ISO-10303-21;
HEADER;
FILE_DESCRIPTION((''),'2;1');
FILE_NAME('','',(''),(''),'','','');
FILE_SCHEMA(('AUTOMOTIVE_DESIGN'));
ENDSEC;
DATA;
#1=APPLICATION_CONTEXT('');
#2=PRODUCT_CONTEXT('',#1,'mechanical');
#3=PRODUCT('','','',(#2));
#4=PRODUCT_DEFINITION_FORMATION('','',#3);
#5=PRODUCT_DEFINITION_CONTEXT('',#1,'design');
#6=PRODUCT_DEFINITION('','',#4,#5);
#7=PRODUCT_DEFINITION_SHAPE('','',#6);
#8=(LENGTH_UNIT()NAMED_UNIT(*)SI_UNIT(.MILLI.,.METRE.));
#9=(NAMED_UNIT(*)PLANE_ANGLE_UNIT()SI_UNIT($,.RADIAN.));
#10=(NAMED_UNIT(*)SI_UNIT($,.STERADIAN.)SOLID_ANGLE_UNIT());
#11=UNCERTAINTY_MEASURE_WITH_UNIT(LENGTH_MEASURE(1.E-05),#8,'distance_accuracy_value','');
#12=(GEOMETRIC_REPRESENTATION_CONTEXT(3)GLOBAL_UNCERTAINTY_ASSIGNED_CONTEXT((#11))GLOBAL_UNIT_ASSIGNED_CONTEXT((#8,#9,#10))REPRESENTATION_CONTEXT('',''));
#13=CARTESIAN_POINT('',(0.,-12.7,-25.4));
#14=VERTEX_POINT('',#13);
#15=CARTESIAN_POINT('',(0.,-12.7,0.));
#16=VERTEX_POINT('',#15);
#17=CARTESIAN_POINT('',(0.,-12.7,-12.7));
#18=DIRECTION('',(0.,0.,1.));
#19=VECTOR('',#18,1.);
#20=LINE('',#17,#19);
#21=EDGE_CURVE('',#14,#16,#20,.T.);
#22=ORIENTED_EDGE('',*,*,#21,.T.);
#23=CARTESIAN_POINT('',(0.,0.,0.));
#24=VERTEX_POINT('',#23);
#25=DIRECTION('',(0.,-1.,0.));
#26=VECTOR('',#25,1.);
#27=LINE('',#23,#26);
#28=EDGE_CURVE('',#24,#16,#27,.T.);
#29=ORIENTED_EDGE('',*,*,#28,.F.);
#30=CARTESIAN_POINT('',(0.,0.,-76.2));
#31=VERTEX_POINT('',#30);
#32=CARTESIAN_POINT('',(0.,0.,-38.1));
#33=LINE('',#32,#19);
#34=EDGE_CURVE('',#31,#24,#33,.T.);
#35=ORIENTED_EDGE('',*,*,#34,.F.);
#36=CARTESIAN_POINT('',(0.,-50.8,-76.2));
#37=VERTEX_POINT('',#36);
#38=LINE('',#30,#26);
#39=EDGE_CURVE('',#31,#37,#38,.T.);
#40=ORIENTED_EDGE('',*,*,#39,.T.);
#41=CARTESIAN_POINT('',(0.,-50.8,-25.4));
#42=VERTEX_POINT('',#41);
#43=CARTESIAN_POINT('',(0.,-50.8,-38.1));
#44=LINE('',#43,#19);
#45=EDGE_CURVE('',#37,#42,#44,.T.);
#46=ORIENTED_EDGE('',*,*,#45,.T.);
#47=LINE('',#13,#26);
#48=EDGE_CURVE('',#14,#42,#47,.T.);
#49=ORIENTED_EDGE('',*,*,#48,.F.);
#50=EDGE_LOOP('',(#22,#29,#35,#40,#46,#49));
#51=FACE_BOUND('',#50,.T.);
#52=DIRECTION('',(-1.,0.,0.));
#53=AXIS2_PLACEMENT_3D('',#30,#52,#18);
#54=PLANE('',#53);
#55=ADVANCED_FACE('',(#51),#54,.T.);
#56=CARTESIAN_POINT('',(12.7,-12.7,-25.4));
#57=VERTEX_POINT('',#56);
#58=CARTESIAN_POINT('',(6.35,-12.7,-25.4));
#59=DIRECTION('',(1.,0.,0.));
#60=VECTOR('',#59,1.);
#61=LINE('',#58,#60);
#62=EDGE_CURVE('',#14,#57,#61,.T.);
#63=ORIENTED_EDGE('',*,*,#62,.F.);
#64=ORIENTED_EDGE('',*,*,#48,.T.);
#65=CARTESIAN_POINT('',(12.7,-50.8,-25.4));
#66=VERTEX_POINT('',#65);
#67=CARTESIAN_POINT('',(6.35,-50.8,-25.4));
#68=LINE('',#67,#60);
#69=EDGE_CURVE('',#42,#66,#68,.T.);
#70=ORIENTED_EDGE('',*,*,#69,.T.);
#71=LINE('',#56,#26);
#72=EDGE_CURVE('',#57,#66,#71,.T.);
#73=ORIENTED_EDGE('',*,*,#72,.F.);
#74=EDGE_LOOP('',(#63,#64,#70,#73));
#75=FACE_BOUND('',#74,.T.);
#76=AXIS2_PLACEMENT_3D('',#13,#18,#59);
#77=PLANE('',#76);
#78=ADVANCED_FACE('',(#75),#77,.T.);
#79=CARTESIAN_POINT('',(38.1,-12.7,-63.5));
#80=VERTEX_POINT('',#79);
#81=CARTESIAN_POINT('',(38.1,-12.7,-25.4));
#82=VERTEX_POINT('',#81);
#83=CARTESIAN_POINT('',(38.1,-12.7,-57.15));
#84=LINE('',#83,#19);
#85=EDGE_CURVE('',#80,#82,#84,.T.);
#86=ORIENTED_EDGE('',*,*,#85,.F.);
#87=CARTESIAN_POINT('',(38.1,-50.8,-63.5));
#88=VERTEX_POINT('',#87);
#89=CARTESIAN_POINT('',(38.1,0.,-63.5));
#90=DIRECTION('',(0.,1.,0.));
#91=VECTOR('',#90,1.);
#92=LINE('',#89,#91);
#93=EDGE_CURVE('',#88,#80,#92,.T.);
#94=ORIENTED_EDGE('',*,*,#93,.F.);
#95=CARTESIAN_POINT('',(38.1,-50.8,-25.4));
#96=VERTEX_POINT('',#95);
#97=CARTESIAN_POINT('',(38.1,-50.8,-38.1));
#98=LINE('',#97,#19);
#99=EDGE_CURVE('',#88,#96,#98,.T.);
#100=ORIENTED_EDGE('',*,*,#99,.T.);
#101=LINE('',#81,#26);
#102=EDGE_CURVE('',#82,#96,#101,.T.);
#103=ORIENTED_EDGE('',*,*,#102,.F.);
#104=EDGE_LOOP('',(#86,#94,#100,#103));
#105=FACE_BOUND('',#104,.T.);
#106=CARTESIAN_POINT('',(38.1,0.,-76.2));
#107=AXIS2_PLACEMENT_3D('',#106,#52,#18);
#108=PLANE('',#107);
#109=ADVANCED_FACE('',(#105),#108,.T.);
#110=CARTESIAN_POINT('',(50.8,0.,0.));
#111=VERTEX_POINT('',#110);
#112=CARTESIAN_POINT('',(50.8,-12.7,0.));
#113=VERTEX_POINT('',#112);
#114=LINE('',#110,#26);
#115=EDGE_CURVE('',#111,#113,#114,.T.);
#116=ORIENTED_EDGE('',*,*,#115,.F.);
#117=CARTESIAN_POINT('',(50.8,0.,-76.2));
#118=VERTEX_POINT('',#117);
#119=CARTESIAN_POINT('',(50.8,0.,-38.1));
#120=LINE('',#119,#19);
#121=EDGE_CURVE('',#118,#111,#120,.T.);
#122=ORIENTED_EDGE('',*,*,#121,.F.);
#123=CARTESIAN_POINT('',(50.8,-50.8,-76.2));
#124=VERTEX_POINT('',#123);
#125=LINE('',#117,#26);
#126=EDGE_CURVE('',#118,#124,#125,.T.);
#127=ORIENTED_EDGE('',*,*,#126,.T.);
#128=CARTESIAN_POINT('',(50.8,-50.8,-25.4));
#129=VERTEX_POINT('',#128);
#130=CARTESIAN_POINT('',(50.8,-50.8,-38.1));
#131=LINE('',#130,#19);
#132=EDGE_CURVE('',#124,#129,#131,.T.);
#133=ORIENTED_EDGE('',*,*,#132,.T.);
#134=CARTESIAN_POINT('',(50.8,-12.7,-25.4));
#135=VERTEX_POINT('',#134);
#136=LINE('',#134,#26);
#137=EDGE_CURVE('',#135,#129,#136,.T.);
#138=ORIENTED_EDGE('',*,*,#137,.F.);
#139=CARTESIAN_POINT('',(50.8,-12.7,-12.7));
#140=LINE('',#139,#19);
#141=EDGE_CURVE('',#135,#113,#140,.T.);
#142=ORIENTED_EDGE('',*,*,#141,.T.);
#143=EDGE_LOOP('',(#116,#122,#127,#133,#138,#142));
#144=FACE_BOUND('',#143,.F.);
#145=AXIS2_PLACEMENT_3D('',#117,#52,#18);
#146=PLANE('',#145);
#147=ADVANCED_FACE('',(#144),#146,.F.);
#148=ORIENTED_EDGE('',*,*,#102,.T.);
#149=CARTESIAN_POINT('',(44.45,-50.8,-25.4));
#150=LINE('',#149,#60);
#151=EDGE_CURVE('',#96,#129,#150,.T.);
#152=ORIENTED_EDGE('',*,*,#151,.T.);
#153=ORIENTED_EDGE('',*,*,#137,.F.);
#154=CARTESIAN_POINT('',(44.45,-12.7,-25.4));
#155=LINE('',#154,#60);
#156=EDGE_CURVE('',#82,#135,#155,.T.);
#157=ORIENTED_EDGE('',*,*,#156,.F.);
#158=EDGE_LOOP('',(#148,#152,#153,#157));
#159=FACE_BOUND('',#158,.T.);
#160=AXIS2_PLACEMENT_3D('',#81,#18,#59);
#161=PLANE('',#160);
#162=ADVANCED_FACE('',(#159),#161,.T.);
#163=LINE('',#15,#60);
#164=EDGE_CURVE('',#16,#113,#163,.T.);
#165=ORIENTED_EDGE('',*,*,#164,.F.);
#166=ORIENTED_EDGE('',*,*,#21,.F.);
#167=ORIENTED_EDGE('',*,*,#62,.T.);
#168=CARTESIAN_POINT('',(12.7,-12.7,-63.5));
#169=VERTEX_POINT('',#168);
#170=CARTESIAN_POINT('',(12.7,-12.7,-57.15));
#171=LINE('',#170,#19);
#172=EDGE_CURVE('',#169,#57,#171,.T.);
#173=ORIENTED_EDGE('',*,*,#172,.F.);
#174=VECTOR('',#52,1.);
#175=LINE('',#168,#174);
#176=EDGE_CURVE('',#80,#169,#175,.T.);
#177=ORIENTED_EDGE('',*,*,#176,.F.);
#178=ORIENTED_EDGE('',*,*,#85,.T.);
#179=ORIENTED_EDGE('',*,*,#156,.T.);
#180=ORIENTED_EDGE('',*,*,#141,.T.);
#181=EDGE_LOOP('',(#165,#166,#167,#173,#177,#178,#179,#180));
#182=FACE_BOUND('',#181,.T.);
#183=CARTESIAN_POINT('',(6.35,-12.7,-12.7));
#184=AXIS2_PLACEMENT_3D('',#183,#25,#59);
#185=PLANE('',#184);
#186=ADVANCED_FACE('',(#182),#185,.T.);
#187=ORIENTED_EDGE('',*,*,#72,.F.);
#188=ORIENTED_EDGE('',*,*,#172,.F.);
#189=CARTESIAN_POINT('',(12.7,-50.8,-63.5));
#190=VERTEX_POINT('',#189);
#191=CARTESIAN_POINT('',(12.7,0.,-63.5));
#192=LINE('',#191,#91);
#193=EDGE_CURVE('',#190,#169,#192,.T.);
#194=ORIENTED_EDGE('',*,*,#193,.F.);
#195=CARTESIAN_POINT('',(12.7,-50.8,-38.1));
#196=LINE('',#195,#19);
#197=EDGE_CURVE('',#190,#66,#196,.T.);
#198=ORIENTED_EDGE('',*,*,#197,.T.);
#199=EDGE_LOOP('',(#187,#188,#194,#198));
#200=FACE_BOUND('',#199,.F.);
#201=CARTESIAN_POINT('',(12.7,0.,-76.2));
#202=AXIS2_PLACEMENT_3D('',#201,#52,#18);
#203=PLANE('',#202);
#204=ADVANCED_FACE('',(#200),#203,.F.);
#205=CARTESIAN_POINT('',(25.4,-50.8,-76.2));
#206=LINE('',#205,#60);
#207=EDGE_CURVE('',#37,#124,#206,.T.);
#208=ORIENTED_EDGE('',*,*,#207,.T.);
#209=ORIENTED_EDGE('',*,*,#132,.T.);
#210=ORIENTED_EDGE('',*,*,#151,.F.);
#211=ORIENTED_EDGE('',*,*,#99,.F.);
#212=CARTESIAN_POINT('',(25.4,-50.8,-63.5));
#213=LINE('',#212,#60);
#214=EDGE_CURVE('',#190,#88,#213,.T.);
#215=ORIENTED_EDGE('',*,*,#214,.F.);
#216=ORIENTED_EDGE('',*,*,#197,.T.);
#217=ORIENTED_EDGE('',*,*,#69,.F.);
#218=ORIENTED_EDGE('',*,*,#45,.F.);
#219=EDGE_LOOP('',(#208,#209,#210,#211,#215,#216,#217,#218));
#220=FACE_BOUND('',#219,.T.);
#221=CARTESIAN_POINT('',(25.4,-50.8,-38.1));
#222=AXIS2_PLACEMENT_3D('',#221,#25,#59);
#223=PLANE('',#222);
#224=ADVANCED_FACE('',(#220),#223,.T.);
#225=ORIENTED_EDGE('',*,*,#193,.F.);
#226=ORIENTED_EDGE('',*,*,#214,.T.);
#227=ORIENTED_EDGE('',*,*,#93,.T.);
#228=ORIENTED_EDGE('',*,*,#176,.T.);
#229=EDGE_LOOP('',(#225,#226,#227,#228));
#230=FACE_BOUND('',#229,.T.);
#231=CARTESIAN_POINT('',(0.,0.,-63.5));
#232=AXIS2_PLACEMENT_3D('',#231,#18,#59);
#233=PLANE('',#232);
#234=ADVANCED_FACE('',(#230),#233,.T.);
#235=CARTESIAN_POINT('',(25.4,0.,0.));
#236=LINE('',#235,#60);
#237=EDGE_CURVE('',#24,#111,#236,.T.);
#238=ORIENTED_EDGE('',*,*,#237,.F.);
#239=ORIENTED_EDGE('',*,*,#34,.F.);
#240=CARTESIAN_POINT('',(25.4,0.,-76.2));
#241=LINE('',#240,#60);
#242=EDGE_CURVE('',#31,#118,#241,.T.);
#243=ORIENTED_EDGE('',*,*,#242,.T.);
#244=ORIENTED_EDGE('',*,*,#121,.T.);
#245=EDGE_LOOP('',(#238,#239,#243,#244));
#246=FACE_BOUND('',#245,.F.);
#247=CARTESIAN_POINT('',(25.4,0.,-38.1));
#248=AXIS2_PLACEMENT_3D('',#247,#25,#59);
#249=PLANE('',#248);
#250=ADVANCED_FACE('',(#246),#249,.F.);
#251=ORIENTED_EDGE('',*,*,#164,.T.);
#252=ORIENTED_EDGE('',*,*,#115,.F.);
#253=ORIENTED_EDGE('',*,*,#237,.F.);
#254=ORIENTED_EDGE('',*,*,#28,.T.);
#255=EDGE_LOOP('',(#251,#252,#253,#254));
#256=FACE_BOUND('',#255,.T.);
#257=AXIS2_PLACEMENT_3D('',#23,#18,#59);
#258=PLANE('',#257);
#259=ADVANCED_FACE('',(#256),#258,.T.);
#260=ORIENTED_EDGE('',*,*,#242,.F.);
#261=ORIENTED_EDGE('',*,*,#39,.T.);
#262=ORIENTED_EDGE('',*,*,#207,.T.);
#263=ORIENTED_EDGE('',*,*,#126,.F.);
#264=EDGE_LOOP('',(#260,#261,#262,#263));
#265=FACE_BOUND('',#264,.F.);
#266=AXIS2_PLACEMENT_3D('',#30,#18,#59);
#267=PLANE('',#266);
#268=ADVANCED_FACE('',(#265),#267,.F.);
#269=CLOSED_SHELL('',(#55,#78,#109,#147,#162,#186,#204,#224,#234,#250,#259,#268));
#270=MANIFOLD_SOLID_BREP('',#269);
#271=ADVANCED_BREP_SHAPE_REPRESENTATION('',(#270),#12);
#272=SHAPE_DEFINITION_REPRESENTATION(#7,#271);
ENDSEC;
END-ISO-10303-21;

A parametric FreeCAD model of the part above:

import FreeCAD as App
import Part
import Sketcher

V = App.Vector
Q = App.Units.Quantity


def faces_at(feature, points):
    """Names of the faces that lie closest to the given points."""
    faces = feature.Shape.Faces
    near = lambda p: min(range(len(faces)), key=lambda i: faces[i].distToShape(Part.Vertex(*p))[0])
    return sorted({f"Face{near(p) + 1}" for p in points})

doc = App.newDocument("Part")
params = doc.addObject("Spreadsheet::Sheet", "Params")
for row, (alias, value) in enumerate([
    ("sketch1_width", "2 in"),
    ("sketch1_height", "3 in"),
    ("pad1_length", "2 in"),
    ("thickness_wall", "0.5 in"),
    ("sketch2_height", "1 in"),
    ("sketch2_width", "0.5 in"),
    ("pocket1_length", "1.5 in"),
], start=1):
    params.set(f"A{row}", alias)
    params.set(f"B{row}", "=" + value)
    params.setAlias(f"B{row}", alias)

body = doc.addObject("PartDesign::Body", "Body")

# Sketch on XZ plane
sketch1 = body.newObject("Sketcher::SketchObject", "Sketch")
sketch1.AttachmentSupport = (doc.getObject("XZ_Plane"), [""])
sketch1.MapMode = "FlatFace"
sketch1.addGeometry([
    Part.LineSegment(V(0, 0, 0), V(0, -76.2, 0)),
    Part.LineSegment(V(0, -76.2, 0), V(50.8, -76.2, 0)),
    Part.LineSegment(V(50.8, -76.2, 0), V(50.8, 0, 0)),
    Part.LineSegment(V(50.8, 0, 0), V(0, 0, 0)),
], False)
sketch1.addConstraint([
    Sketcher.Constraint("Coincident", 0, 2, 1, 1),
    Sketcher.Constraint("Coincident", 1, 2, 2, 1),
    Sketcher.Constraint("Coincident", 2, 2, 3, 1),
    Sketcher.Constraint("Coincident", 3, 2, 0, 1),
    Sketcher.Constraint("Vertical", 0),
    Sketcher.Constraint("Horizontal", 1),
    Sketcher.Constraint("Vertical", 2),
    Sketcher.Constraint("Horizontal", 3),
    Sketcher.Constraint("Coincident", 3, 2, -1, 1),
    Sketcher.Constraint("DistanceX", 1, 1, 1, 2, Q("2 in")),
    Sketcher.Constraint("DistanceY", 0, 2, 0, 1, Q("3 in")),
])
sketch1.setExpression("Constraints[9]", "Params.sketch1_width")
sketch1.setExpression("Constraints[10]", "Params.sketch1_height")
pad1 = body.newObject("PartDesign::Pad", "Pad")
pad1.Profile = sketch1
pad1.setExpression("Length", "Params.pad1_length")
doc.recompute()

thickness = body.newObject("PartDesign::Thickness", "Thickness")
thickness.Base = (pad1, faces_at(pad1, [(25.4, -50.8, -38.1), (25.4, -25.4, 0)]))
thickness.setExpression("Value", "Params.thickness_wall")
thickness.Reversed = True
thickness.Join = "Arc"

# Sketch on XZ plane
sketch2 = body.newObject("Sketcher::SketchObject", "Sketch001")
sketch2.AttachmentSupport = (doc.getObject("XZ_Plane"), [""])
sketch2.MapMode = "FlatFace"
sketch2.AttachmentOffset = App.Placement(V(0, 0, 0.5 * 25.4), App.Rotation())
sketch2.addGeometry([
    Part.LineSegment(V(0, 0, 0), V(0, -25.4, 0)),  # 0
    Part.LineSegment(V(0, -25.4, 0), V(12.7, -25.4, 0)),  # 1
    Part.LineSegment(V(12.7, -25.4, 0), V(12.7, 0, 0)),  # 2
    Part.LineSegment(V(12.7, 0, 0), V(0, 0, 0)),  # 3
    Part.LineSegment(V(38.1, 0, 0), V(38.1, -25.4, 0)),  # 4
    Part.LineSegment(V(38.1, -25.4, 0), V(50.8, -25.4, 0)),  # 5
    Part.LineSegment(V(50.8, -25.4, 0), V(50.8, 0, 0)),  # 6
    Part.LineSegment(V(50.8, 0, 0), V(38.1, 0, 0)),  # 7
], False)
sketch2.addConstraint([
    Sketcher.Constraint("Coincident", 0, 2, 1, 1),
    Sketcher.Constraint("Coincident", 1, 2, 2, 1),
    Sketcher.Constraint("Coincident", 2, 2, 3, 1),
    Sketcher.Constraint("Coincident", 3, 2, 0, 1),
    Sketcher.Constraint("Coincident", 4, 2, 5, 1),
    Sketcher.Constraint("Coincident", 5, 2, 6, 1),
    Sketcher.Constraint("Coincident", 6, 2, 7, 1),
    Sketcher.Constraint("Coincident", 7, 2, 4, 1),
    Sketcher.Constraint("Vertical", 0),
    Sketcher.Constraint("Horizontal", 1),
    Sketcher.Constraint("Vertical", 2),
    Sketcher.Constraint("Horizontal", 3),
    Sketcher.Constraint("Vertical", 4),
    Sketcher.Constraint("Horizontal", 5),
    Sketcher.Constraint("Vertical", 6),
    Sketcher.Constraint("Horizontal", 7),
    Sketcher.Constraint("Coincident", 3, 2, -1, 1),
    Sketcher.Constraint("PointOnObject", 6, 2, -1),
    Sketcher.Constraint("Horizontal", 1, 2, 4, 2),
    Sketcher.Constraint("Equal", 3, 5),
    Sketcher.Constraint("DistanceY", 0, 2, 0, 1, Q("1 in")),
    Sketcher.Constraint("DistanceX", 1, 1, 1, 2, Q("0.5 in")),
    Sketcher.Constraint("DistanceX", -1, 1, 5, 2, Q("2 in")),
])
sketch2.setExpression("Constraints[20]", "Params.sketch2_height")
sketch2.setExpression("Constraints[21]", "Params.sketch2_width")
pocket1 = body.newObject("PartDesign::Pocket", "Pocket")
pocket1.Profile = sketch2
pocket1.setExpression("Length", "Params.pocket1_length")
pocket1.Reversed = True

doc.recompute()
